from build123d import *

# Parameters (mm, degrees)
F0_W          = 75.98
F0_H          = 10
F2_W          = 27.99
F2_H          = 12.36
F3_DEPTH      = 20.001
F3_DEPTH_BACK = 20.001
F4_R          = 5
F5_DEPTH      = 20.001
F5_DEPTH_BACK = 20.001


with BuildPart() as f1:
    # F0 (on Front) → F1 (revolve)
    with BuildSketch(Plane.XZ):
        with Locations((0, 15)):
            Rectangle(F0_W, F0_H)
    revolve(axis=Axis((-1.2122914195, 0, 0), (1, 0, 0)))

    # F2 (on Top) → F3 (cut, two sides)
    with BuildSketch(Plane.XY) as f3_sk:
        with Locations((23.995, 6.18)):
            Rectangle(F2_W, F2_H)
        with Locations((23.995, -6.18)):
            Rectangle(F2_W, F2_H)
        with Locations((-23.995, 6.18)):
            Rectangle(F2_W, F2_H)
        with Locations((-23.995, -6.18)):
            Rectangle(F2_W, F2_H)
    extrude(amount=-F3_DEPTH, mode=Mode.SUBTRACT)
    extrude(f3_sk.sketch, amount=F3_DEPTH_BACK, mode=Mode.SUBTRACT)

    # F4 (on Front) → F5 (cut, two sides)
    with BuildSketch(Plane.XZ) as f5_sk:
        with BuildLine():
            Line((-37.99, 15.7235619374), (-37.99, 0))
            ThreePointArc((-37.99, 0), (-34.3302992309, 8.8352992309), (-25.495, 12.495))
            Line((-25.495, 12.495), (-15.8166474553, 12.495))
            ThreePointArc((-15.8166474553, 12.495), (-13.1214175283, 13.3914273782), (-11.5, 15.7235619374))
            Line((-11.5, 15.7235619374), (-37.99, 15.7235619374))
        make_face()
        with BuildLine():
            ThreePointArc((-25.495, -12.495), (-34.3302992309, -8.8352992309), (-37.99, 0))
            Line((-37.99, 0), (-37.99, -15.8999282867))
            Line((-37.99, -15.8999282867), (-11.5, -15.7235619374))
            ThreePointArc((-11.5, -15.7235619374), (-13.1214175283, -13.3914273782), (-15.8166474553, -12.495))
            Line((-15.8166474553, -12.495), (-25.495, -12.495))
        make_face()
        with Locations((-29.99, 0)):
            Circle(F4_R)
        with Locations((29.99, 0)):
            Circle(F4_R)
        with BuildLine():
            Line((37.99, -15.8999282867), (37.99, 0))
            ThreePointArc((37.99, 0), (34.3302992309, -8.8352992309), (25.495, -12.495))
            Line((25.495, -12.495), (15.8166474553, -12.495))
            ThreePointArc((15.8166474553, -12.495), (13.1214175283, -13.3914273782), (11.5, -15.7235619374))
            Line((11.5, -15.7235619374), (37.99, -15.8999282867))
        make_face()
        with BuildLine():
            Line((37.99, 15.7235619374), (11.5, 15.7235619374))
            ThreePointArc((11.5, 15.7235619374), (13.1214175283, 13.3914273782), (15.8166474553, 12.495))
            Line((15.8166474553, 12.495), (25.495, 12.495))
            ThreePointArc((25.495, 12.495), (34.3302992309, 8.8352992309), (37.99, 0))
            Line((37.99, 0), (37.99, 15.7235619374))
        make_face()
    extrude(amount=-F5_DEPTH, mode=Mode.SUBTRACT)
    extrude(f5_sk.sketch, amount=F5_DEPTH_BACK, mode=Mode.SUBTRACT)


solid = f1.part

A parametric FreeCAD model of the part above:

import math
import FreeCAD as App
import Part
import Sketcher

V = App.Vector

doc = App.newDocument("Part")
params = doc.addObject("Spreadsheet::Sheet", "Params")
for row, (alias, value) in enumerate([
    ("sketch1_height", "10 mm"),
    ("sketch1_width", "75.98 mm"),
    ("revolution_angle", "360 deg"),
    ("sketch2_width", "27.99 mm"),
    ("sketch2_height", "24.72 mm"),
    ("sketch3_diameter", "10 mm"),
    ("sketch3_radius", "4.5 mm"),
    ("sketch3_width", "26.49 mm"),
], start=1):
    params.set(f"A{row}", alias)
    params.set(f"B{row}", "=" + value)
    params.setAlias(f"B{row}", alias)

body = doc.addObject("PartDesign::Body", "Body")

# Sketch on XZ plane
sketch1 = doc.addObject("Sketcher::SketchObject", "Sketch")
body.addObject(sketch1)
sketch1.AttachmentSupport = (doc.XZ_Plane, [""])
sketch1.MapMode = "FlatFace"
sketch1.addGeometry([
    Part.LineSegment(V(-37.99, 20, 0), V(-37.99, 10, 0)),
    Part.LineSegment(V(-37.99, 10, 0), V(37.99, 10, 0)),
    Part.LineSegment(V(37.99, 10, 0), V(37.99, 20, 0)),
    Part.LineSegment(V(37.99, 20, 0), V(-37.99, 20, 0)),
], False)
sketch1.addConstraint([
    Sketcher.Constraint("Coincident", 0, 2, 1, 1),
    Sketcher.Constraint("Coincident", 1, 2, 2, 1),
    Sketcher.Constraint("Coincident", 2, 2, 3, 1),
    Sketcher.Constraint("Coincident", 3, 2, 0, 1),
    Sketcher.Constraint("Vertical", 0),
    Sketcher.Constraint("Horizontal", 1),
    Sketcher.Constraint("Vertical", 2),
    Sketcher.Constraint("Horizontal", 3),
    Sketcher.Constraint("DistanceY", 0, 2, 0, 1, 10.0),
    Sketcher.Constraint("DistanceY", -1, 1, 0, 2, 10.0),
    Sketcher.Constraint("DistanceX", 1, 1, 1, 2, 75.98),
    Sketcher.Constraint("DistanceX", 0, 2, -1, 1, 37.99),
])
sketch1.setExpression("Constraints[8]", "Params.sketch1_height")
sketch1.setExpression("Constraints[10]", "Params.sketch1_width")
revolution = doc.addObject("PartDesign::Revolution", "Revolution")
body.addObject(revolution)
revolution.Profile = sketch1
revolution.ReferenceAxis = (sketch1, ["H_Axis"])
revolution.setExpression("Angle", "Params.revolution_angle")

# Sketch on XY plane
sketch2 = doc.addObject("Sketcher::SketchObject", "Sketch001")
body.addObject(sketch2)
sketch2.AttachmentSupport = (doc.XY_Plane, [""])
sketch2.MapMode = "FlatFace"
sketch2.addGeometry([
    Part.LineSegment(V(10, 12.36, 0), V(10, -12.36, 0)),  # 0
    Part.LineSegment(V(10, -12.36, 0), V(37.99, -12.36, 0)),  # 1
    Part.LineSegment(V(37.99, -12.36, 0), V(37.99, 12.36, 0)),  # 2
    Part.LineSegment(V(37.99, 12.36, 0), V(10, 12.36, 0)),  # 3
    Part.LineSegment(V(-37.99, 12.36, 0), V(-37.99, -12.36, 0)),  # 4
    Part.LineSegment(V(-37.99, -12.36, 0), V(-10, -12.36, 0)),  # 5
    Part.LineSegment(V(-10, -12.36, 0), V(-10, 12.36, 0)),  # 6
    Part.LineSegment(V(-10, 12.36, 0), V(-37.99, 12.36, 0)),  # 7
], False)
sketch2.addConstraint([
    Sketcher.Constraint("Coincident", 0, 2, 1, 1),
    Sketcher.Constraint("Coincident", 1, 2, 2, 1),
    Sketcher.Constraint("Coincident", 2, 2, 3, 1),
    Sketcher.Constraint("Coincident", 3, 2, 0, 1),
    Sketcher.Constraint("Coincident", 4, 2, 5, 1),
    Sketcher.Constraint("Coincident", 5, 2, 6, 1),
    Sketcher.Constraint("Coincident", 6, 2, 7, 1),
    Sketcher.Constraint("Coincident", 7, 2, 4, 1),
    Sketcher.Constraint("Vertical", 0),
    Sketcher.Constraint("Horizontal", 1),
    Sketcher.Constraint("Vertical", 2),
    Sketcher.Constraint("Horizontal", 3),
    Sketcher.Constraint("Vertical", 4),
    Sketcher.Constraint("Horizontal", 5),
    Sketcher.Constraint("Vertical", 6),
    Sketcher.Constraint("Horizontal", 7),
    Sketcher.Constraint("Symmetric", 2, 2, 4, 2, -1, 1),
    Sketcher.Constraint("Symmetric", 0, 2, 6, 2, -1, 1),
    Sketcher.Constraint("Horizontal", 1, 2, 4, 2),
    Sketcher.Constraint("DistanceX", -1, 1, 0, 2, 10.0),
    Sketcher.Constraint("DistanceX", 1, 1, 1, 2, 27.99),
    Sketcher.Constraint("DistanceY", 0, 2, 0, 1, 24.72),
])
sketch2.setExpression("Constraints[20]", "Params.sketch2_width")
sketch2.setExpression("Constraints[21]", "Params.sketch2_height")
pocket1 = doc.addObject("PartDesign::Pocket", "Pocket")
body.addObject(pocket1)
pocket1.Profile = sketch2
pocket1.Type = "ThroughAll"
pocket1.Midplane = True

# Sketch on XZ plane
sketch3 = doc.addObject("Sketcher::SketchObject", "Sketch002")
body.addObject(sketch3)
sketch3.AttachmentSupport = (doc.XZ_Plane, [""])
sketch3.MapMode = "FlatFace"
sketch3.addGeometry([
    Part.LineSegment(V(-37.99, 15.723562, 0), V(-37.99, 0, 0)),  # 0
    Part.ArcOfCircle(Part.Circle(V(-25.495, 0, 0), V(0, 0, 1), 12.495), math.radians(90), math.radians(180)),  # 1
    Part.LineSegment(V(-25.495, 12.495, 0), V(-15.816647, 12.495, 0)),  # 2
    Part.ArcOfCircle(Part.Circle(V(-15.816647, 16.995, 0), V(0, 0, 1), 4.5), math.radians(-90), math.radians(-16.411966)),  # 3
    Part.LineSegment(V(-11.5, 15.723562, 0), V(-37.99, 15.723562, 0)),  # 4
    Part.ArcOfCircle(Part.Circle(V(-25.495, 0, 0), V(0, 0, 1), 12.495), math.radians(180), math.radians(270)),  # 5
    Part.LineSegment(V(-37.99, 0, 0), V(-37.99, -15.899928, 0)),  # 6
    Part.LineSegment(V(-37.99, -15.899928, 0), V(-11.5, -15.723562, 0)),  # 7
    Part.ArcOfCircle(Part.Circle(V(-15.816647, -16.995, 0), V(0, 0, 1), 4.5), math.radians(16.411966), math.radians(90)),  # 8
    Part.LineSegment(V(-15.816647, -12.495, 0), V(-25.495, -12.495, 0)),  # 9
    Part.Circle(V(-29.99, 0, 0), V(0, 0, 1), 5),  # 10
    Part.Circle(V(29.99, 0, 0), V(0, 0, 1), 5),  # 11
    Part.LineSegment(V(37.99, -15.899928, 0), V(37.99, 0, 0)),  # 12
    Part.ArcOfCircle(Part.Circle(V(25.495, 0, 0), V(0, 0, 1), 12.495), math.radians(-90), math.radians(0)),  # 13
    Part.LineSegment(V(25.495, -12.495, 0), V(15.816647, -12.495, 0)),  # 14
    Part.ArcOfCircle(Part.Circle(V(15.816647, -16.995, 0), V(0, 0, 1), 4.5), math.radians(90), math.radians(163.588034)),  # 15
    Part.LineSegment(V(11.5, -15.723562, 0), V(37.99, -15.899928, 0)),  # 16
    Part.LineSegment(V(37.99, 15.723562, 0), V(11.5, 15.723562, 0)),  # 17
    Part.ArcOfCircle(Part.Circle(V(15.816647, 16.995, 0), V(0, 0, 1), 4.5), math.radians(-163.588034), math.radians(-90)),  # 18
    Part.LineSegment(V(15.816647, 12.495, 0), V(25.495, 12.495, 0)),  # 19
    Part.ArcOfCircle(Part.Circle(V(25.495, 0, 0), V(0, 0, 1), 12.495), math.radians(0), math.radians(90)),  # 20
    Part.LineSegment(V(37.99, 0, 0), V(37.99, 15.723562, 0)),  # 21
], False)
sketch3.addConstraint([
    Sketcher.Constraint("Tangent", 0, 2, 1, 2),
    Sketcher.Constraint("Tangent", 1, 1, 2, 1),
    Sketcher.Constraint("Tangent", 2, 2, 3, 1),
    Sketcher.Constraint("Coincident", 3, 2, 4, 1),
    Sketcher.Constraint("Coincident", 4, 2, 0, 1),
    Sketcher.Constraint("Tangent", 5, 1, 6, 1),
    Sketcher.Constraint("Coincident", 6, 2, 7, 1),
    Sketcher.Constraint("Coincident", 7, 2, 8, 1),
    Sketcher.Constraint("Tangent", 8, 2, 9, 1),
    Sketcher.Constraint("Tangent", 9, 2, 5, 2),
    Sketcher.Constraint("Tangent", 12, 2, 13, 2),
    Sketcher.Constraint("Tangent", 13, 1, 14, 1),
    Sketcher.Constraint("Tangent", 14, 2, 15, 1),
    Sketcher.Constraint("Coincident", 15, 2, 16, 1),
    Sketcher.Constraint("Coincident", 16, 2, 12, 1),
    Sketcher.Constraint("Coincident", 17, 2, 18, 1),
    Sketcher.Constraint("Tangent", 18, 2, 19, 1),
    Sketcher.Constraint("Tangent", 19, 2, 20, 2),
    Sketcher.Constraint("Tangent", 20, 1, 21, 1),
    Sketcher.Constraint("Coincident", 21, 2, 17, 1),
    Sketcher.Constraint("Vertical", 0),
    Sketcher.Constraint("Horizontal", 2),
    Sketcher.Constraint("Horizontal", 4),
    Sketcher.Constraint("Vertical", 6),
    Sketcher.Constraint("Horizontal", 9),
    Sketcher.Constraint("Vertical", 12),
    Sketcher.Constraint("Horizontal", 14),
    Sketcher.Constraint("Horizontal", 17),
    Sketcher.Constraint("Horizontal", 19),
    Sketcher.Constraint("Vertical", 21),
    Sketcher.Constraint("Coincident", 5, 3, 1, 3),
    Sketcher.Constraint("Coincident", 20, 3, 13, 3),
    Sketcher.Constraint("Equal", 1, 5),
    Sketcher.Constraint("Equal", 3, 8),
    Sketcher.Constraint("Equal", 10, 11),
    Sketcher.Constraint("Equal", 5, 13),
    Sketcher.Constraint("Equal", 8, 15),
    Sketcher.Constraint("Equal", 15, 18),
    Sketcher.Constraint("Equal", 13, 20),
    Sketcher.Constraint("Symmetric", 10, 3, 11, 3, -1, 1),
    Sketcher.Constraint("Symmetric", 1, 3, 13, 3, -1, 1),
    Sketcher.Constraint("Symmetric", 3, 2, 15, 2, -1, 1),
    Sketcher.Constraint("Symmetric", 7, 2, 17, 2, -1, 1),
    Sketcher.Constraint("Symmetric", 8, 3, 15, 3, -2),
    Sketcher.Constraint("PointOnObject", 10, 3, -1),
    Sketcher.Constraint("Horizontal", 7, 2, 15, 2),
    Sketcher.Constraint("Horizontal", 6, 2, 16, 2),
    Sketcher.Constraint("Diameter", 10, 10.0),
    Sketcher.Constraint("Radius", 3, 4.5),
    Sketcher.Constraint("Radius", 1, 12.495),
    Sketcher.Constraint("DistanceX", 0, 2, 10, 3, 8.0),
    Sketcher.Constraint("DistanceX", 3, 2, 17, 2, 23.0),
    Sketcher.Constraint("DistanceX", 4, 2, 4, 1, 26.49),
    Sketcher.Constraint("DistanceY", 0, 2, 0, 1, 15.723562),
    Sketcher.Constraint("DistanceY", 6, 2, 6, 1, 15.899928),
])
sketch3.setExpression("Constraints[47]", "Params.sketch3_diameter")
sketch3.setExpression("Constraints[48]", "Params.sketch3_radius")
sketch3.setExpression("Constraints[52]", "Params.sketch3_width")
pocket2 = doc.addObject("PartDesign::Pocket", "Pocket001")
body.addObject(pocket2)
pocket2.Profile = sketch3
pocket2.Type = "ThroughAll"
pocket2.Midplane = True

doc.recompute()
